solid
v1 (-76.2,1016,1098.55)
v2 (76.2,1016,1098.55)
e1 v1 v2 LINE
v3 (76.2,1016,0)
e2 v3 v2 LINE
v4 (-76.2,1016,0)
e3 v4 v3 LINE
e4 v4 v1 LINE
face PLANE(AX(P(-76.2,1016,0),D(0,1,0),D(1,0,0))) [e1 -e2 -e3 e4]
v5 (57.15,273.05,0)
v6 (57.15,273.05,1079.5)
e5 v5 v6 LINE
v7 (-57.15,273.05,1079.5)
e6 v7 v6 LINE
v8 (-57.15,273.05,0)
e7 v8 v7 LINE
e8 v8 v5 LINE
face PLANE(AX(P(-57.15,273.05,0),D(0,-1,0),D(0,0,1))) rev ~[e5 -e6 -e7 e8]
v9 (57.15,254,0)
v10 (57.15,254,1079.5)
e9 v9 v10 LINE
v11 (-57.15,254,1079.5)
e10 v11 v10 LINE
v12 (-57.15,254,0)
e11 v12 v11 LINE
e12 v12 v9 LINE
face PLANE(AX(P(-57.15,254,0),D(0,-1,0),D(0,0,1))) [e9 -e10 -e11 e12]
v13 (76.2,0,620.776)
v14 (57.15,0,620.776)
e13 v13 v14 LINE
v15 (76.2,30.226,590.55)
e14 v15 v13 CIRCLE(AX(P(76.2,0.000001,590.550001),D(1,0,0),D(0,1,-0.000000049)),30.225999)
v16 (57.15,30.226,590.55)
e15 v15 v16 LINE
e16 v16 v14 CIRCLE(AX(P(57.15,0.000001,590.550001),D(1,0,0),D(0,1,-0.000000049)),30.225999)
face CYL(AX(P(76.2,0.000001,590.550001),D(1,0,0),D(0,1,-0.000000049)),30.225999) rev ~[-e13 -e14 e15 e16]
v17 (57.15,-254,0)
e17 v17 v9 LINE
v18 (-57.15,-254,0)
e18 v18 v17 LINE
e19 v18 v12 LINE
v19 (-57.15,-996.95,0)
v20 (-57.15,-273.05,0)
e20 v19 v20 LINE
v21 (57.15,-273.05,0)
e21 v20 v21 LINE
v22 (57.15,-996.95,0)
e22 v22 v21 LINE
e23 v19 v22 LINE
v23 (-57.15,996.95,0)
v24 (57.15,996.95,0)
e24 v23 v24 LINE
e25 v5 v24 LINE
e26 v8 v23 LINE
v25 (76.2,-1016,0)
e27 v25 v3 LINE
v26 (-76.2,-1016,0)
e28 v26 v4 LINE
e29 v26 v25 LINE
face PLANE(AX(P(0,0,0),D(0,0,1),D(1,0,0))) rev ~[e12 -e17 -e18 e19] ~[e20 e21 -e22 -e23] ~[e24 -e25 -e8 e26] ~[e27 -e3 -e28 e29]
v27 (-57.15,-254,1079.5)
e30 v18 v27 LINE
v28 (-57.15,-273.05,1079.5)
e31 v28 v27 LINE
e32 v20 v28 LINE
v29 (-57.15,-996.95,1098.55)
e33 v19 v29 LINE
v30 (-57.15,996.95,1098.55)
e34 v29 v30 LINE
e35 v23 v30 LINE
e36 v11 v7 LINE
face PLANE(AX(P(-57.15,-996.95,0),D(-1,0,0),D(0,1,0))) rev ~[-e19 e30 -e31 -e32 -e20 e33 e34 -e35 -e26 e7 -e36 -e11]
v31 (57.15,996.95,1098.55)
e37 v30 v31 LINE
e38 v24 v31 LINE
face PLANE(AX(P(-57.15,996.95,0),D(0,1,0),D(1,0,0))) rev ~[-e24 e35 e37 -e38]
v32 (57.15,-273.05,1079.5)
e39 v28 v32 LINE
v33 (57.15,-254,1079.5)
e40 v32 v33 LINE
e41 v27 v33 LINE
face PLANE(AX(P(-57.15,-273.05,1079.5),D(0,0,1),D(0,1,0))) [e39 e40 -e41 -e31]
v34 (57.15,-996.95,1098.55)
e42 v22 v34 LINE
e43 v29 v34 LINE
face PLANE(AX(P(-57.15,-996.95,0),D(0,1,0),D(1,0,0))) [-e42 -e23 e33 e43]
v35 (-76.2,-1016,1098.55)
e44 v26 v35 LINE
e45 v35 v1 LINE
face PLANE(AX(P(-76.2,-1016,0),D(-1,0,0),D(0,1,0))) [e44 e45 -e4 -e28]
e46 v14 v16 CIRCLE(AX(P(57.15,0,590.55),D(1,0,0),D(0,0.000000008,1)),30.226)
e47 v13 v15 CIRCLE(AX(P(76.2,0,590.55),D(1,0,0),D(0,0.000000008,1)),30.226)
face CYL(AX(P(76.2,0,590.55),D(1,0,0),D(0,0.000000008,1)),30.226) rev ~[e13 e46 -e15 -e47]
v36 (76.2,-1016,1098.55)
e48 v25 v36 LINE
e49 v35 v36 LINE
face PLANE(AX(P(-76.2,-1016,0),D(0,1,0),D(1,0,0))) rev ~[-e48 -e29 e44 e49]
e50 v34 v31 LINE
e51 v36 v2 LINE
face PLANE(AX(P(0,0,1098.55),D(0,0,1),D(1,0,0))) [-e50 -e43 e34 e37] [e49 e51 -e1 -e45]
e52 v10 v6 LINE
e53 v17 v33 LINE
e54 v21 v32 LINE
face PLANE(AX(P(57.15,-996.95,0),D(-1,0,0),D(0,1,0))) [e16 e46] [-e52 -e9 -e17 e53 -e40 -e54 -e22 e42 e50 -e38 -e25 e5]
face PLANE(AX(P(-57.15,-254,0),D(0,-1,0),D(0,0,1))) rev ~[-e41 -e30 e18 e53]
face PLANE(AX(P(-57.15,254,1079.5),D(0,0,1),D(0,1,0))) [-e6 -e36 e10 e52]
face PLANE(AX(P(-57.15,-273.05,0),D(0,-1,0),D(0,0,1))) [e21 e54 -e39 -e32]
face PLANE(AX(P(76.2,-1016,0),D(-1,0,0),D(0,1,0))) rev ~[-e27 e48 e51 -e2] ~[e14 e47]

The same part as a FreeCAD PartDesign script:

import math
import FreeCAD as App
import Part
import Sketcher
Q = App.Units.Quantity

doc = App.newDocument("Part")
params = doc.addObject("Spreadsheet::Sheet", "Params")
for row, (alias, value) in enumerate([
    ("sketch1_width", "6 in"),
    ("sketch1_height", "80 in"),
    ("sketch1_width2", "4.5 in"),
    ("sketch1_height2", "78.5 in"),
    ("pad1_length", "43.25 in"),
    ("sketch2_radius", "1.1899999 in"),
    ("pocket1_length", "1 in"),
    ("sketch3_height", "42.5 in"),
    ("sketch3_width", "0.75 in"),
    ("pad2_length", "4.5 in"),
], start=1):
    params.set(f"A{row}", alias)
    params.set(f"B{row}", "=" + value)
    params.setAlias(f"B{row}", alias)

body = doc.addObject("PartDesign::Body", "Body")

# Sketch on XY plane
sketch1 = body.newObject("Sketcher::SketchObject", "Sketch")
sketch1.AttachmentSupport = (doc.getObject("XY_Plane"), [""])
sketch1.MapMode = "FlatFace"
sketch1.addGeometry(Part.LineSegment(App.Vector(-76, 1016, 0), App.Vector(-76, -1016, 0)), False)
sketch1.addGeometry(Part.LineSegment(App.Vector(-76, -1016, 0), App.Vector(76, -1016, 0)), False)
sketch1.addGeometry(Part.LineSegment(App.Vector(76, -1016, 0), App.Vector(76, 1016, 0)), False)
sketch1.addGeometry(Part.LineSegment(App.Vector(76, 1016, 0), App.Vector(-76, 1016, 0)), False)
sketch1.addGeometry(Part.LineSegment(App.Vector(57, -997, 0), App.Vector(-57, -997, 0)), False)
sketch1.addGeometry(Part.LineSegment(App.Vector(-57, -997, 0), App.Vector(-57, 997, 0)), False)
sketch1.addGeometry(Part.LineSegment(App.Vector(-57, 997, 0), App.Vector(57, 997, 0)), False)
sketch1.addGeometry(Part.LineSegment(App.Vector(57, 997, 0), App.Vector(57, -997, 0)), False)
sketch1.addConstraint(Sketcher.Constraint("Coincident", 0, 2, 1, 1))
sketch1.addConstraint(Sketcher.Constraint("Coincident", 1, 2, 2, 1))
sketch1.addConstraint(Sketcher.Constraint("Coincident", 2, 2, 3, 1))
sketch1.addConstraint(Sketcher.Constraint("Coincident", 3, 2, 0, 1))
sketch1.addConstraint(Sketcher.Constraint("Coincident", 4, 2, 5, 1))
sketch1.addConstraint(Sketcher.Constraint("Coincident", 5, 2, 6, 1))
sketch1.addConstraint(Sketcher.Constraint("Coincident", 6, 2, 7, 1))
sketch1.addConstraint(Sketcher.Constraint("Coincident", 7, 2, 4, 1))
sketch1.addConstraint(Sketcher.Constraint("Vertical", 0))
sketch1.addConstraint(Sketcher.Constraint("Horizontal", 1))
sketch1.addConstraint(Sketcher.Constraint("Vertical", 2))
sketch1.addConstraint(Sketcher.Constraint("Horizontal", 3))
sketch1.addConstraint(Sketcher.Constraint("Horizontal", 4))
sketch1.addConstraint(Sketcher.Constraint("Vertical", 5))
sketch1.addConstraint(Sketcher.Constraint("Horizontal", 6))
sketch1.addConstraint(Sketcher.Constraint("Vertical", 7))
sketch1.addConstraint(Sketcher.Constraint("Symmetric", 0, 2, 2, 2, -1, 1))
sketch1.addConstraint(Sketcher.Constraint("Symmetric", 4, 2, 6, 2, -1, 1))
sketch1.addConstraint(Sketcher.Constraint("DistanceX", 1, 1, 1, 2, Q("6 in")))
sketch1.addConstraint(Sketcher.Constraint("DistanceY", 0, 2, 0, 1, Q("80 in")))
sketch1.addConstraint(Sketcher.Constraint("DistanceX", 4, 2, 4, 1, Q("4.5 in")))
sketch1.addConstraint(Sketcher.Constraint("DistanceY", 5, 1, 5, 2, Q("78.5 in")))
sketch1.setExpression("Constraints[18]", "Params.sketch1_width")
sketch1.setExpression("Constraints[19]", "Params.sketch1_height")
sketch1.setExpression("Constraints[20]", "Params.sketch1_width2")
sketch1.setExpression("Constraints[21]", "Params.sketch1_height2")
pad1 = body.newObject("PartDesign::Pad", "Pad")
pad1.Profile = sketch1
pad1.setExpression("Length", "Params.pad1_length")

# Sketch on YZ plane
sketch2 = body.newObject("Sketcher::SketchObject", "Sketch001")
sketch2.AttachmentSupport = (doc.getObject("YZ_Plane"), [""])
sketch2.MapMode = "FlatFace"
sketch2.AttachmentOffset = App.Placement(App.Vector(0, 0, 3 * 25.4), App.Rotation())
sketch2.addGeometry(Part.ArcOfCircle(Part.Circle(App.Vector(0, 591, 0), App.Vector(0, 0, 1), 30), math.radians(0), math.radians(90)), False)
sketch2.addGeometry(Part.ArcOfCircle(Part.Circle(App.Vector(0, 591, 0), App.Vector(0, 0, 1), 30), math.radians(90), math.radians(360)), False)
sketch2.addConstraint(Sketcher.Constraint("Tangent", 0, 1, 1, 2))
sketch2.addConstraint(Sketcher.Constraint("Coincident", 1, 1, 0, 2))
sketch2.addConstraint(Sketcher.Constraint("PointOnObject", 0, 3, -2))
sketch2.addConstraint(Sketcher.Constraint("PointOnObject", 1, 1, -2))
sketch2.addConstraint(Sketcher.Constraint("Horizontal", 1, 3, 0, 1))
sketch2.addConstraint(Sketcher.Constraint("Radius", 0, Q("1.1899999 in")))
sketch2.addConstraint(Sketcher.Constraint("DistanceY", -1, 1, 0, 3, Q("23.2500001 in")))
sketch2.setExpression("Constraints[5]", "Params.sketch2_radius")
pocket1 = body.newObject("PartDesign::Pocket", "Pocket")
pocket1.Profile = sketch2
pocket1.setExpression("Length", "Params.pocket1_length")

# Sketch on YZ plane
sketch3 = body.newObject("Sketcher::SketchObject", "Sketch002")
sketch3.AttachmentSupport = (doc.getObject("YZ_Plane"), [""])
sketch3.MapMode = "FlatFace"
sketch3.AttachmentOffset = App.Placement(App.Vector(0, 0, -2.25 * 25.4), App.Rotation())
sketch3.addGeometry(Part.LineSegment(App.Vector(-273, 1080, 0), App.Vector(-273, 0, 0)), False)
sketch3.addGeometry(Part.LineSegment(App.Vector(-273, 0, 0), App.Vector(-254, 0, 0)), False)
sketch3.addGeometry(Part.LineSegment(App.Vector(-254, 0, 0), App.Vector(-254, 1080, 0)), False)
sketch3.addGeometry(Part.LineSegment(App.Vector(-254, 1080, 0), App.Vector(-273, 1080, 0)), False)
sketch3.addGeometry(Part.LineSegment(App.Vector(254, 1080, 0), App.Vector(254, 0, 0)), False)
sketch3.addGeometry(Part.LineSegment(App.Vector(254, 0, 0), App.Vector(273, 0, 0)), False)
sketch3.addGeometry(Part.LineSegment(App.Vector(273, 0, 0), App.Vector(273, 1080, 0)), False)
sketch3.addGeometry(Part.LineSegment(App.Vector(273, 1080, 0), App.Vector(254, 1080, 0)), False)
sketch3.addConstraint(Sketcher.Constraint("Coincident", 0, 2, 1, 1))
sketch3.addConstraint(Sketcher.Constraint("Coincident", 1, 2, 2, 1))
sketch3.addConstraint(Sketcher.Constraint("Coincident", 2, 2, 3, 1))
sketch3.addConstraint(Sketcher.Constraint("Coincident", 3, 2, 0, 1))
sketch3.addConstraint(Sketcher.Constraint("Coincident", 4, 2, 5, 1))
sketch3.addConstraint(Sketcher.Constraint("Coincident", 5, 2, 6, 1))
sketch3.addConstraint(Sketcher.Constraint("Coincident", 6, 2, 7, 1))
sketch3.addConstraint(Sketcher.Constraint("Coincident", 7, 2, 4, 1))
sketch3.addConstraint(Sketcher.Constraint("Vertical", 0))
sketch3.addConstraint(Sketcher.Constraint("Horizontal", 1))
sketch3.addConstraint(Sketcher.Constraint("Vertical", 2))
sketch3.addConstraint(Sketcher.Constraint("Horizontal", 3))
sketch3.addConstraint(Sketcher.Constraint("Vertical", 4))
sketch3.addConstraint(Sketcher.Constraint("Horizontal", 5))
sketch3.addConstraint(Sketcher.Constraint("Vertical", 6))
sketch3.addConstraint(Sketcher.Constraint("Horizontal", 7))
sketch3.addConstraint(Sketcher.Constraint("Symmetric", 1, 2, 4, 2, -1, 1))
sketch3.addConstraint(Sketcher.Constraint("Symmetric", 0, 2, 5, 2, -2))
sketch3.addConstraint(Sketcher.Constraint("Horizontal", 3, 2, 6, 2))
sketch3.addConstraint(Sketcher.Constraint("DistanceY", 0, 2, 0, 1, Q("42.5 in")))
sketch3.addConstraint(Sketcher.Constraint("DistanceX", 1, 2, -1, 1, Q("10 in")))
sketch3.addConstraint(Sketcher.Constraint("DistanceX", 1, 1, 1, 2, Q("0.75 in")))
sketch3.setExpression("Constraints[19]", "Params.sketch3_height")
sketch3.setExpression("Constraints[21]", "Params.sketch3_width")
pad2 = body.newObject("PartDesign::Pad", "Pad001")
pad2.Profile = sketch3
pad2.setExpression("Length", "Params.pad2_length")

doc.recompute()
